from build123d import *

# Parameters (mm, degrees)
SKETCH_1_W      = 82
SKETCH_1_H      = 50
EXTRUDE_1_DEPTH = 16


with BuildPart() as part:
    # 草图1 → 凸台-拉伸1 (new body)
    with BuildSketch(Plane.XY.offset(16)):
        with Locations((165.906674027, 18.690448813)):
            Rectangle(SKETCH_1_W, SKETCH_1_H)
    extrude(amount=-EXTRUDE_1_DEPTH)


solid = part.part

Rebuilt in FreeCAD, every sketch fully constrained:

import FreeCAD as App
import Part
import Sketcher

V = App.Vector


def add_polygon(sketch, points):
    """Adds a closed chain of lines whose ends are joined by coincident constraints."""
    first, n = sketch.GeometryCount, len(points)
    for a, b in zip(points, points[1:] + points[:1]):
        sketch.addGeometry(Part.LineSegment(App.Vector(*a, 0), App.Vector(*b, 0)), False)
    for i in range(n):
        sketch.addConstraint(Sketcher.Constraint("Coincident", first + i, 2, first + (i + 1) % n, 1))

doc = App.newDocument("Part")
params = doc.addObject("Spreadsheet::Sheet", "Params")
for row, (alias, value) in enumerate([
    ("sketch1_width", "82 mm"),
    ("sketch1_height", "50 mm"),
    ("pad1_length", "16 mm"),
], start=1):
    params.set(f"A{row}", alias)
    params.set(f"B{row}", "=" + value)
    params.setAlias(f"B{row}", alias)

body = doc.addObject("PartDesign::Body", "Body")

# Sketch on XY plane
sketch1 = body.newObject("Sketcher::SketchObject", "Sketch")
sketch1.AttachmentSupport = (doc.getObject("XY_Plane"), [""])
sketch1.MapMode = "FlatFace"
sketch1.AttachmentOffset = App.Placement(V(0, 0, 16), App.Rotation())
add_polygon(sketch1, [(125, 44), (125, -6), (207, -6), (207, 44)])  # lines 0-3
sketch1.addConstraint([
    Sketcher.Constraint("Vertical", 0),
    Sketcher.Constraint("Horizontal", 1),
    Sketcher.Constraint("Vertical", 2),
    Sketcher.Constraint("Horizontal", 3),
    Sketcher.Constraint("DistanceX", 1, 1, 1, 2, 82.0),
    Sketcher.Constraint("DistanceY", 0, 2, 0, 1, 50.0),
    Sketcher.Constraint("DistanceY", 0, 2, -1, 1, 6.309551),
    Sketcher.Constraint("DistanceX", -1, 1, 0, 2, 124.906674),
])
sketch1.setExpression("Constraints[8]", "Params.sketch1_width")
sketch1.setExpression("Constraints[9]", "Params.sketch1_height")
pad1 = body.newObject("PartDesign::Pad", "Pad")
pad1.Profile = sketch1
pad1.setExpression("Length", "Params.pad1_length")
pad1.Reversed = True

doc.recompute()
